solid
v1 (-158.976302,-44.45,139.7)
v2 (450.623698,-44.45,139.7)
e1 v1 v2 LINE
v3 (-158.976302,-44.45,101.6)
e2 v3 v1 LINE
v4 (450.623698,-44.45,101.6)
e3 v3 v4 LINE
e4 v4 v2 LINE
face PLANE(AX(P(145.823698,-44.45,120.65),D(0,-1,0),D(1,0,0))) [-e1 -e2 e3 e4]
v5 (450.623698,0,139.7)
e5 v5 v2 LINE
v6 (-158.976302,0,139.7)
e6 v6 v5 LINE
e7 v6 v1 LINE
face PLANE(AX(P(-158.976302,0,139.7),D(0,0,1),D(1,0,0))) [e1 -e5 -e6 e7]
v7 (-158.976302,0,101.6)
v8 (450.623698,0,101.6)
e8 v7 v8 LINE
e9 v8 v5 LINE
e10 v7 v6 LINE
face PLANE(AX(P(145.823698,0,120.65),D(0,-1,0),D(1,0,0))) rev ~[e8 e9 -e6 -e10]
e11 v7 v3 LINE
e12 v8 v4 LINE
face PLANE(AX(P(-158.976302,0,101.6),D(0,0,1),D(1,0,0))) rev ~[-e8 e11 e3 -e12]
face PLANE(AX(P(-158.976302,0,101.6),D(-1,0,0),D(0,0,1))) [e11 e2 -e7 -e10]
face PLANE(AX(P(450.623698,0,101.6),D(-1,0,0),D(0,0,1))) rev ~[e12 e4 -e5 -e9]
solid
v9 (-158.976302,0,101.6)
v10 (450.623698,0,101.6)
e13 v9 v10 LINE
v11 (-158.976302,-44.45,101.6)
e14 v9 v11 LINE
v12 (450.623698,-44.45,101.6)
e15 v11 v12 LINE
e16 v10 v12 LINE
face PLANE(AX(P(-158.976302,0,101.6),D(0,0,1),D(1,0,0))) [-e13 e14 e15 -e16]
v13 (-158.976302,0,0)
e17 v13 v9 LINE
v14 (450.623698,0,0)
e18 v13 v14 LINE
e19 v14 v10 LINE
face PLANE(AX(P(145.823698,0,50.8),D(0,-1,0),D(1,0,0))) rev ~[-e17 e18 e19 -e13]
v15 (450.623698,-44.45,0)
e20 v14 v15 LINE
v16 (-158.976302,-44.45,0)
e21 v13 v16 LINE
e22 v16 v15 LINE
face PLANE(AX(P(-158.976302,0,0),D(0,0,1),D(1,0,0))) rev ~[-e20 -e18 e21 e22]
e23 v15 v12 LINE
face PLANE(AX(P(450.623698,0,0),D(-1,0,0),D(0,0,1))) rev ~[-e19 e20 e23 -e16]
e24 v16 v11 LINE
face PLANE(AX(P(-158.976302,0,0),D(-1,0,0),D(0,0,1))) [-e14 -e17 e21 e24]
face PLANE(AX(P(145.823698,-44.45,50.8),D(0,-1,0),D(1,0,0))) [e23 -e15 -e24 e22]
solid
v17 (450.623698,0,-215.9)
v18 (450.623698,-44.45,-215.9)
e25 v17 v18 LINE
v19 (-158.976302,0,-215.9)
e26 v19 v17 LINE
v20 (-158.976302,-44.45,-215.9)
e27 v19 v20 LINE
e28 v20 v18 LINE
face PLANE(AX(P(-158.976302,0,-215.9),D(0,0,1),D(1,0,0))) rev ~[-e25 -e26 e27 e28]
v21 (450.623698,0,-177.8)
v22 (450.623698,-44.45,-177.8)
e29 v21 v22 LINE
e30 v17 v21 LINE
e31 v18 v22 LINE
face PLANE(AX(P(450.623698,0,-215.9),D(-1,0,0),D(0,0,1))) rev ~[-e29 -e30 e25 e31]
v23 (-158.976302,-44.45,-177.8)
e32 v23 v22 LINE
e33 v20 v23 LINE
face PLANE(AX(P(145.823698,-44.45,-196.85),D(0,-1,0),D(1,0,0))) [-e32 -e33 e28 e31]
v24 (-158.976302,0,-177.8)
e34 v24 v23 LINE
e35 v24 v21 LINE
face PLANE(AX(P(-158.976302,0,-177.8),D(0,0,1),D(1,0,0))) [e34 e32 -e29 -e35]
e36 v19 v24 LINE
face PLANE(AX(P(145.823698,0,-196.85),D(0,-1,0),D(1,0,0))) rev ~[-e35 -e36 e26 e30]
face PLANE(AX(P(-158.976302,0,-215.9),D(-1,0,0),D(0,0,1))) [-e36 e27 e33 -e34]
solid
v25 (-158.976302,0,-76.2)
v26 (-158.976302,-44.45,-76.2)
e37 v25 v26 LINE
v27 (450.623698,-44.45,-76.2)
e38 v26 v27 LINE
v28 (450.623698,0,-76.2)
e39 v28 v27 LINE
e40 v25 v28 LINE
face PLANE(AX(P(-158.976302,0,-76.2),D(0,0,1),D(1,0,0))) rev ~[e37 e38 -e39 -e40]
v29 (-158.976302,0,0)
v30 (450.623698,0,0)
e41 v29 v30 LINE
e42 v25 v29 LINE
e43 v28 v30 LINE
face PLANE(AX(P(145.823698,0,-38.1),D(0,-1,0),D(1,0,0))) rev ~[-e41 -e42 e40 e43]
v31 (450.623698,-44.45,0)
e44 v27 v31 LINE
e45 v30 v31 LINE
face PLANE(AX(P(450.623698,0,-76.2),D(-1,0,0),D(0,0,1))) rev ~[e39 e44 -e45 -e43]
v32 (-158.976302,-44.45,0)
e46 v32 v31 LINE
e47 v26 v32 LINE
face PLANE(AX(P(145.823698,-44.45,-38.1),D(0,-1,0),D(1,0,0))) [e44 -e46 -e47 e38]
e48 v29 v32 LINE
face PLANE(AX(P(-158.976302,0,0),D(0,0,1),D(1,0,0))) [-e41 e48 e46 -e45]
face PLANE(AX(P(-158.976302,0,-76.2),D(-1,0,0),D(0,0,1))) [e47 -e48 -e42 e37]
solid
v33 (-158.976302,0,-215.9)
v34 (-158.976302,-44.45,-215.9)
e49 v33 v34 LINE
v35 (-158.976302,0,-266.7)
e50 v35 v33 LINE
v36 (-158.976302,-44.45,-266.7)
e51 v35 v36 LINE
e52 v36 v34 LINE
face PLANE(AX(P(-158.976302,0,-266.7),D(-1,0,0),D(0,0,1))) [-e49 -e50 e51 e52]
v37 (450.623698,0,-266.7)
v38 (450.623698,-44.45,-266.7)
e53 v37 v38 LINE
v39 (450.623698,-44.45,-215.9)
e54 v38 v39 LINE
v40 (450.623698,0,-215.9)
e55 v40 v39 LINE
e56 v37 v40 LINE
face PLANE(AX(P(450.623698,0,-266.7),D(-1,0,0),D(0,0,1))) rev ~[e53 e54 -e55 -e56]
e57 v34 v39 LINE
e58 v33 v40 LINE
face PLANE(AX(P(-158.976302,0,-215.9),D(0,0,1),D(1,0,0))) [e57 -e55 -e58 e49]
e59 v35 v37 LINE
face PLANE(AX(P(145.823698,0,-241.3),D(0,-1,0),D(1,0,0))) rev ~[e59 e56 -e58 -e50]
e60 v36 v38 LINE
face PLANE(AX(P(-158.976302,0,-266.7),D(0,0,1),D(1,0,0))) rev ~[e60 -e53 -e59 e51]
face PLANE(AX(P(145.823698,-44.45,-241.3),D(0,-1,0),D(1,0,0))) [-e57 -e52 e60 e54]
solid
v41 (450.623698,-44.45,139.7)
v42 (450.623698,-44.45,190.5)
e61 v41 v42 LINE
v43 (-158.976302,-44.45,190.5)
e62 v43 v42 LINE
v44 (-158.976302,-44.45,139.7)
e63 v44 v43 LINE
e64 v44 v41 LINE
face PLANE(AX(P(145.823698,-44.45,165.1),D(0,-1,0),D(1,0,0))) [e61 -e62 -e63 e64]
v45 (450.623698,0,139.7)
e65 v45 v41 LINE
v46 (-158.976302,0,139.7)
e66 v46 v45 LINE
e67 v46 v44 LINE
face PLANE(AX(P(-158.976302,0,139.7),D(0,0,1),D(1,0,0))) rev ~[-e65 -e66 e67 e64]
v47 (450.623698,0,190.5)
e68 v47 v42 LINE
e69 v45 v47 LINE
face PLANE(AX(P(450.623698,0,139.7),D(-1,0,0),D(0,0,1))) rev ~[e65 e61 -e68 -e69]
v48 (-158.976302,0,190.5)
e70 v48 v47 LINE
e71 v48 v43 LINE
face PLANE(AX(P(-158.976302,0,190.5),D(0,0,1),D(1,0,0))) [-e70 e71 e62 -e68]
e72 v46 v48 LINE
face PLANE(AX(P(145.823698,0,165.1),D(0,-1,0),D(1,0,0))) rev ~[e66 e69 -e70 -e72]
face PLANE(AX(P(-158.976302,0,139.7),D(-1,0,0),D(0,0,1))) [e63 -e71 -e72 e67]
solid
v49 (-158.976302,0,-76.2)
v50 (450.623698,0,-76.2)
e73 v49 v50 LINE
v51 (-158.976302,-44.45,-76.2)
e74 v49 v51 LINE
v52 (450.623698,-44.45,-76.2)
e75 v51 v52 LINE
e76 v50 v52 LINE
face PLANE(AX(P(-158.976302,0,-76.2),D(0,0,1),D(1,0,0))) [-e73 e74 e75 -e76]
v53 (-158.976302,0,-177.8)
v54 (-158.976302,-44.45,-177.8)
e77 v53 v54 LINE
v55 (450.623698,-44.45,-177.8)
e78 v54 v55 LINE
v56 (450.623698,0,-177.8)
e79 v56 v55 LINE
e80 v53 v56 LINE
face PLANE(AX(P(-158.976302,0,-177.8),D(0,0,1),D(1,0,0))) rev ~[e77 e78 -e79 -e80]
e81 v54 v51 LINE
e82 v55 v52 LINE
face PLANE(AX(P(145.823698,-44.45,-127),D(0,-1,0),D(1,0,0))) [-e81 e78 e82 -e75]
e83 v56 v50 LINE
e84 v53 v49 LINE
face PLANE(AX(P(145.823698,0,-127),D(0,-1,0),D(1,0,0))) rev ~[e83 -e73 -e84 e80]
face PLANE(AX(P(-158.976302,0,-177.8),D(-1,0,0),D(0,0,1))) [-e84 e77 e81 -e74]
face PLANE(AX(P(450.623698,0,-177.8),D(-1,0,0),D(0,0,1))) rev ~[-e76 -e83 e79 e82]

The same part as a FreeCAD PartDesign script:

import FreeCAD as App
import Part
import Sketcher
from FreeCAD import Vector
Q = App.Units.Quantity

doc = App.newDocument("Part")
body = doc.addObject("PartDesign::Body", "Body")

# Sketch on XZ plane
sketch1 = doc.addObject("Sketcher::SketchObject", "Sketch")
body.addObject(sketch1)
sketch1.AttachmentSupport = (doc.XZ_Plane, [""])
sketch1.MapMode = "FlatFace"
sketch1.addGeometry([
    Part.LineSegment(Vector(-159, 140, 0), Vector(-159, 102, 0)),
    Part.LineSegment(Vector(-159, 102, 0), Vector(451, 102, 0)),
    Part.LineSegment(Vector(451, 102, 0), Vector(451, 140, 0)),
    Part.LineSegment(Vector(451, 140, 0), Vector(-159, 140, 0)),
], False)
sketch1.addConstraint([
    Sketcher.Constraint("Coincident", 0, 2, 1, 1),
    Sketcher.Constraint("Coincident", 1, 2, 2, 1),
    Sketcher.Constraint("Coincident", 2, 2, 3, 1),
    Sketcher.Constraint("Coincident", 3, 2, 0, 1),
    Sketcher.Constraint("Vertical", 0),
    Sketcher.Constraint("Horizontal", 1),
    Sketcher.Constraint("Vertical", 2),
    Sketcher.Constraint("Horizontal", 3),
    Sketcher.Constraint("DistanceX", 1, 1, 1, 2, Q("24 in")),
    Sketcher.Constraint("DistanceY", 0, 2, 0, 1, Q("1.5 in")),
    Sketcher.Constraint("DistanceY", -1, 1, 0, 2, Q("4 in")),
    Sketcher.Constraint("DistanceX", 0, 2, -1, 1, 158.976302),
])
pad1 = doc.addObject("PartDesign::Pad", "Pad")
body.addObject(pad1)
pad1.Profile = sketch1
pad1.Length = Q("1.75 in")
body2 = doc.addObject("PartDesign::Body", "Body001")

# Sketch on XZ plane
sketch2 = doc.addObject("Sketcher::SketchObject", "Sketch001")
body2.addObject(sketch2)
sketch2.AttachmentSupport = (doc.getObject("XZ_Plane001"), [""])
sketch2.MapMode = "FlatFace"
sketch2.addGeometry([
    Part.LineSegment(Vector(-159, -178, 0), Vector(-159, -216, 0)),
    Part.LineSegment(Vector(-159, -216, 0), Vector(451, -216, 0)),
    Part.LineSegment(Vector(451, -216, 0), Vector(451, -178, 0)),
    Part.LineSegment(Vector(451, -178, 0), Vector(-159, -178, 0)),
], False)
sketch2.addConstraint([
    Sketcher.Constraint("Coincident", 0, 2, 1, 1),
    Sketcher.Constraint("Coincident", 1, 2, 2, 1),
    Sketcher.Constraint("Coincident", 2, 2, 3, 1),
    Sketcher.Constraint("Coincident", 3, 2, 0, 1),
    Sketcher.Constraint("Vertical", 0),
    Sketcher.Constraint("Horizontal", 1),
    Sketcher.Constraint("Vertical", 2),
    Sketcher.Constraint("Horizontal", 3),
    Sketcher.Constraint("DistanceX", 1, 1, 1, 2, Q("24 in")),
    Sketcher.Constraint("DistanceY", 0, 2, 0, 1, Q("1.5 in")),
    Sketcher.Constraint("DistanceY", 2, 2, -1, 1, Q("7 in")),
    Sketcher.Constraint("DistanceX", 0, 2, -1, 1, 158.976302),
])
pad2 = doc.addObject("PartDesign::Pad", "Pad001")
body2.addObject(pad2)
pad2.Profile = sketch2
pad2.Length = Q("1.75 in")
body3 = doc.addObject("PartDesign::Body", "Body002")
body3.AllowCompound = True

# Sketch on XZ plane
sketch3 = doc.addObject("Sketcher::SketchObject", "Sketch002")
body3.addObject(sketch3)
sketch3.AttachmentSupport = (doc.getObject("XZ_Plane002"), [""])
sketch3.MapMode = "FlatFace"
sketch3.addGeometry([
    Part.LineSegment(Vector(-159, 102, 0), Vector(-159, 0, 0)),  # 0
    Part.LineSegment(Vector(-159, 0, 0), Vector(451, 0, 0)),  # 1
    Part.LineSegment(Vector(451, 0, 0), Vector(451, 102, 0)),  # 2
    Part.LineSegment(Vector(451, 102, 0), Vector(-159, 102, 0)),  # 3
    Part.LineSegment(Vector(-159, 190, 0), Vector(-159, 140, 0)),  # 4
    Part.LineSegment(Vector(-159, 140, 0), Vector(451, 140, 0)),  # 5
    Part.LineSegment(Vector(451, 140, 0), Vector(451, 190, 0)),  # 6
    Part.LineSegment(Vector(451, 190, 0), Vector(-159, 190, 0)),  # 7
    Part.LineSegment(Vector(-159, -216, 0), Vector(-159, -267, 0)),  # 8
    Part.LineSegment(Vector(-159, -267, 0), Vector(451, -267, 0)),  # 9
    Part.LineSegment(Vector(451, -267, 0), Vector(451, -216, 0)),  # 10
    Part.LineSegment(Vector(451, -216, 0), Vector(-159, -216, 0)),  # 11
], False)
sketch3.addConstraint([
    Sketcher.Constraint("Coincident", 0, 2, 1, 1),
    Sketcher.Constraint("Coincident", 1, 2, 2, 1),
    Sketcher.Constraint("Coincident", 2, 2, 3, 1),
    Sketcher.Constraint("Coincident", 3, 2, 0, 1),
    Sketcher.Constraint("Coincident", 4, 2, 5, 1),
    Sketcher.Constraint("Coincident", 5, 2, 6, 1),
    Sketcher.Constraint("Coincident", 6, 2, 7, 1),
    Sketcher.Constraint("Coincident", 7, 2, 4, 1),
    Sketcher.Constraint("Coincident", 8, 2, 9, 1),
    Sketcher.Constraint("Coincident", 9, 2, 10, 1),
    Sketcher.Constraint("Coincident", 10, 2, 11, 1),
    Sketcher.Constraint("Coincident", 11, 2, 8, 1),
    Sketcher.Constraint("Vertical", 0),
    Sketcher.Constraint("Horizontal", 1),
    Sketcher.Constraint("Vertical", 2),
    Sketcher.Constraint("Horizontal", 3),
    Sketcher.Constraint("Vertical", 4),
    Sketcher.Constraint("Horizontal", 5),
    Sketcher.Constraint("Vertical", 6),
    Sketcher.Constraint("Horizontal", 7),
    Sketcher.Constraint("Vertical", 8),
    Sketcher.Constraint("Horizontal", 9),
    Sketcher.Constraint("Vertical", 10),
    Sketcher.Constraint("Horizontal", 11),
    Sketcher.Constraint("PointOnObject", 0, 2, -1),
    Sketcher.Constraint("Vertical", 3, 2, 4, 2),
    Sketcher.Constraint("Vertical", 2, 2, 5, 2),
    Sketcher.Constraint("Vertical", 7, 2, 8, 2),
    Sketcher.Constraint("Vertical", 6, 2, 9, 2),
    Sketcher.Constraint("Equal", 6, 8),
    Sketcher.Constraint("DistanceX", 1, 1, 1, 2, Q("24 in")),
    Sketcher.Constraint("DistanceY", 0, 2, 0, 1, Q("4 in")),
    Sketcher.Constraint("DistanceY", 4, 2, 4, 1, Q("2 in")),
    Sketcher.Constraint("DistanceY", 8, 2, 4, 2, Q("16 in")),
    Sketcher.Constraint("DistanceY", -1, 1, 4, 2, Q("5.5 in")),
    Sketcher.Constraint("DistanceX", 0, 2, -1, 1, 158.976302),
])
pad3 = doc.addObject("PartDesign::Pad", "Pad002")
body3.addObject(pad3)
pad3.Profile = sketch3
pad3.Length = Q("1.75 in")
body4 = doc.addObject("PartDesign::Body", "Body003")

# Sketch on XZ plane
sketch4 = doc.addObject("Sketcher::SketchObject", "Sketch003")
body4.addObject(sketch4)
sketch4.AttachmentSupport = (doc.getObject("XZ_Plane003"), [""])
sketch4.MapMode = "FlatFace"
sketch4.addGeometry([
    Part.LineSegment(Vector(-159, 0, 0), Vector(-159, -76, 0)),
    Part.LineSegment(Vector(-159, -76, 0), Vector(451, -76, 0)),
    Part.LineSegment(Vector(451, -76, 0), Vector(451, 0, 0)),
    Part.LineSegment(Vector(451, 0, 0), Vector(-159, 0, 0)),
], False)
sketch4.addConstraint([
    Sketcher.Constraint("Coincident", 0, 2, 1, 1),
    Sketcher.Constraint("Coincident", 1, 2, 2, 1),
    Sketcher.Constraint("Coincident", 2, 2, 3, 1),
    Sketcher.Constraint("Coincident", 3, 2, 0, 1),
    Sketcher.Constraint("Vertical", 0),
    Sketcher.Constraint("Horizontal", 1),
    Sketcher.Constraint("Vertical", 2),
    Sketcher.Constraint("Horizontal", 3),
    Sketcher.Constraint("PointOnObject", 2, 2, -1),
    Sketcher.Constraint("DistanceX", 1, 1, 1, 2, Q("24 in")),
    Sketcher.Constraint("DistanceY", 0, 2, 0, 1, Q("3 in")),
    Sketcher.Constraint("DistanceX", 0, 2, -1, 1, 158.976302),
])
pad4 = doc.addObject("PartDesign::Pad", "Pad003")
body4.addObject(pad4)
pad4.Profile = sketch4
pad4.Length = Q("1.75 in")
body5 = doc.addObject("PartDesign::Body", "Body004")

# Sketch on XZ plane
sketch5 = doc.addObject("Sketcher::SketchObject", "Sketch004")
body5.addObject(sketch5)
sketch5.AttachmentSupport = (doc.getObject("XZ_Plane004"), [""])
sketch5.MapMode = "FlatFace"
sketch5.addGeometry([
    Part.LineSegment(Vector(-159, -76, 0), Vector(-159, -178, 0)),
    Part.LineSegment(Vector(-159, -178, 0), Vector(451, -178, 0)),
    Part.LineSegment(Vector(451, -178, 0), Vector(451, -76, 0)),
    Part.LineSegment(Vector(451, -76, 0), Vector(-159, -76, 0)),
], False)
sketch5.addConstraint([
    Sketcher.Constraint("Coincident", 0, 2, 1, 1),
    Sketcher.Constraint("Coincident", 1, 2, 2, 1),
    Sketcher.Constraint("Coincident", 2, 2, 3, 1),
    Sketcher.Constraint("Coincident", 3, 2, 0, 1),
    Sketcher.Constraint("Vertical", 0),
    Sketcher.Constraint("Horizontal", 1),
    Sketcher.Constraint("Vertical", 2),
    Sketcher.Constraint("Horizontal", 3),
    Sketcher.Constraint("DistanceX", 1, 1, 1, 2, Q("24 in")),
    Sketcher.Constraint("DistanceY", 0, 2, 0, 1, Q("4 in")),
    Sketcher.Constraint("DistanceY", 0, 2, -1, 1, Q("7 in")),
    Sketcher.Constraint("DistanceX", 0, 2, -1, 1, 158.976302),
])
pad5 = doc.addObject("PartDesign::Pad", "Pad004")
body5.addObject(pad5)
pad5.Profile = sketch5
pad5.Length = Q("1.75 in")

doc.recompute()
